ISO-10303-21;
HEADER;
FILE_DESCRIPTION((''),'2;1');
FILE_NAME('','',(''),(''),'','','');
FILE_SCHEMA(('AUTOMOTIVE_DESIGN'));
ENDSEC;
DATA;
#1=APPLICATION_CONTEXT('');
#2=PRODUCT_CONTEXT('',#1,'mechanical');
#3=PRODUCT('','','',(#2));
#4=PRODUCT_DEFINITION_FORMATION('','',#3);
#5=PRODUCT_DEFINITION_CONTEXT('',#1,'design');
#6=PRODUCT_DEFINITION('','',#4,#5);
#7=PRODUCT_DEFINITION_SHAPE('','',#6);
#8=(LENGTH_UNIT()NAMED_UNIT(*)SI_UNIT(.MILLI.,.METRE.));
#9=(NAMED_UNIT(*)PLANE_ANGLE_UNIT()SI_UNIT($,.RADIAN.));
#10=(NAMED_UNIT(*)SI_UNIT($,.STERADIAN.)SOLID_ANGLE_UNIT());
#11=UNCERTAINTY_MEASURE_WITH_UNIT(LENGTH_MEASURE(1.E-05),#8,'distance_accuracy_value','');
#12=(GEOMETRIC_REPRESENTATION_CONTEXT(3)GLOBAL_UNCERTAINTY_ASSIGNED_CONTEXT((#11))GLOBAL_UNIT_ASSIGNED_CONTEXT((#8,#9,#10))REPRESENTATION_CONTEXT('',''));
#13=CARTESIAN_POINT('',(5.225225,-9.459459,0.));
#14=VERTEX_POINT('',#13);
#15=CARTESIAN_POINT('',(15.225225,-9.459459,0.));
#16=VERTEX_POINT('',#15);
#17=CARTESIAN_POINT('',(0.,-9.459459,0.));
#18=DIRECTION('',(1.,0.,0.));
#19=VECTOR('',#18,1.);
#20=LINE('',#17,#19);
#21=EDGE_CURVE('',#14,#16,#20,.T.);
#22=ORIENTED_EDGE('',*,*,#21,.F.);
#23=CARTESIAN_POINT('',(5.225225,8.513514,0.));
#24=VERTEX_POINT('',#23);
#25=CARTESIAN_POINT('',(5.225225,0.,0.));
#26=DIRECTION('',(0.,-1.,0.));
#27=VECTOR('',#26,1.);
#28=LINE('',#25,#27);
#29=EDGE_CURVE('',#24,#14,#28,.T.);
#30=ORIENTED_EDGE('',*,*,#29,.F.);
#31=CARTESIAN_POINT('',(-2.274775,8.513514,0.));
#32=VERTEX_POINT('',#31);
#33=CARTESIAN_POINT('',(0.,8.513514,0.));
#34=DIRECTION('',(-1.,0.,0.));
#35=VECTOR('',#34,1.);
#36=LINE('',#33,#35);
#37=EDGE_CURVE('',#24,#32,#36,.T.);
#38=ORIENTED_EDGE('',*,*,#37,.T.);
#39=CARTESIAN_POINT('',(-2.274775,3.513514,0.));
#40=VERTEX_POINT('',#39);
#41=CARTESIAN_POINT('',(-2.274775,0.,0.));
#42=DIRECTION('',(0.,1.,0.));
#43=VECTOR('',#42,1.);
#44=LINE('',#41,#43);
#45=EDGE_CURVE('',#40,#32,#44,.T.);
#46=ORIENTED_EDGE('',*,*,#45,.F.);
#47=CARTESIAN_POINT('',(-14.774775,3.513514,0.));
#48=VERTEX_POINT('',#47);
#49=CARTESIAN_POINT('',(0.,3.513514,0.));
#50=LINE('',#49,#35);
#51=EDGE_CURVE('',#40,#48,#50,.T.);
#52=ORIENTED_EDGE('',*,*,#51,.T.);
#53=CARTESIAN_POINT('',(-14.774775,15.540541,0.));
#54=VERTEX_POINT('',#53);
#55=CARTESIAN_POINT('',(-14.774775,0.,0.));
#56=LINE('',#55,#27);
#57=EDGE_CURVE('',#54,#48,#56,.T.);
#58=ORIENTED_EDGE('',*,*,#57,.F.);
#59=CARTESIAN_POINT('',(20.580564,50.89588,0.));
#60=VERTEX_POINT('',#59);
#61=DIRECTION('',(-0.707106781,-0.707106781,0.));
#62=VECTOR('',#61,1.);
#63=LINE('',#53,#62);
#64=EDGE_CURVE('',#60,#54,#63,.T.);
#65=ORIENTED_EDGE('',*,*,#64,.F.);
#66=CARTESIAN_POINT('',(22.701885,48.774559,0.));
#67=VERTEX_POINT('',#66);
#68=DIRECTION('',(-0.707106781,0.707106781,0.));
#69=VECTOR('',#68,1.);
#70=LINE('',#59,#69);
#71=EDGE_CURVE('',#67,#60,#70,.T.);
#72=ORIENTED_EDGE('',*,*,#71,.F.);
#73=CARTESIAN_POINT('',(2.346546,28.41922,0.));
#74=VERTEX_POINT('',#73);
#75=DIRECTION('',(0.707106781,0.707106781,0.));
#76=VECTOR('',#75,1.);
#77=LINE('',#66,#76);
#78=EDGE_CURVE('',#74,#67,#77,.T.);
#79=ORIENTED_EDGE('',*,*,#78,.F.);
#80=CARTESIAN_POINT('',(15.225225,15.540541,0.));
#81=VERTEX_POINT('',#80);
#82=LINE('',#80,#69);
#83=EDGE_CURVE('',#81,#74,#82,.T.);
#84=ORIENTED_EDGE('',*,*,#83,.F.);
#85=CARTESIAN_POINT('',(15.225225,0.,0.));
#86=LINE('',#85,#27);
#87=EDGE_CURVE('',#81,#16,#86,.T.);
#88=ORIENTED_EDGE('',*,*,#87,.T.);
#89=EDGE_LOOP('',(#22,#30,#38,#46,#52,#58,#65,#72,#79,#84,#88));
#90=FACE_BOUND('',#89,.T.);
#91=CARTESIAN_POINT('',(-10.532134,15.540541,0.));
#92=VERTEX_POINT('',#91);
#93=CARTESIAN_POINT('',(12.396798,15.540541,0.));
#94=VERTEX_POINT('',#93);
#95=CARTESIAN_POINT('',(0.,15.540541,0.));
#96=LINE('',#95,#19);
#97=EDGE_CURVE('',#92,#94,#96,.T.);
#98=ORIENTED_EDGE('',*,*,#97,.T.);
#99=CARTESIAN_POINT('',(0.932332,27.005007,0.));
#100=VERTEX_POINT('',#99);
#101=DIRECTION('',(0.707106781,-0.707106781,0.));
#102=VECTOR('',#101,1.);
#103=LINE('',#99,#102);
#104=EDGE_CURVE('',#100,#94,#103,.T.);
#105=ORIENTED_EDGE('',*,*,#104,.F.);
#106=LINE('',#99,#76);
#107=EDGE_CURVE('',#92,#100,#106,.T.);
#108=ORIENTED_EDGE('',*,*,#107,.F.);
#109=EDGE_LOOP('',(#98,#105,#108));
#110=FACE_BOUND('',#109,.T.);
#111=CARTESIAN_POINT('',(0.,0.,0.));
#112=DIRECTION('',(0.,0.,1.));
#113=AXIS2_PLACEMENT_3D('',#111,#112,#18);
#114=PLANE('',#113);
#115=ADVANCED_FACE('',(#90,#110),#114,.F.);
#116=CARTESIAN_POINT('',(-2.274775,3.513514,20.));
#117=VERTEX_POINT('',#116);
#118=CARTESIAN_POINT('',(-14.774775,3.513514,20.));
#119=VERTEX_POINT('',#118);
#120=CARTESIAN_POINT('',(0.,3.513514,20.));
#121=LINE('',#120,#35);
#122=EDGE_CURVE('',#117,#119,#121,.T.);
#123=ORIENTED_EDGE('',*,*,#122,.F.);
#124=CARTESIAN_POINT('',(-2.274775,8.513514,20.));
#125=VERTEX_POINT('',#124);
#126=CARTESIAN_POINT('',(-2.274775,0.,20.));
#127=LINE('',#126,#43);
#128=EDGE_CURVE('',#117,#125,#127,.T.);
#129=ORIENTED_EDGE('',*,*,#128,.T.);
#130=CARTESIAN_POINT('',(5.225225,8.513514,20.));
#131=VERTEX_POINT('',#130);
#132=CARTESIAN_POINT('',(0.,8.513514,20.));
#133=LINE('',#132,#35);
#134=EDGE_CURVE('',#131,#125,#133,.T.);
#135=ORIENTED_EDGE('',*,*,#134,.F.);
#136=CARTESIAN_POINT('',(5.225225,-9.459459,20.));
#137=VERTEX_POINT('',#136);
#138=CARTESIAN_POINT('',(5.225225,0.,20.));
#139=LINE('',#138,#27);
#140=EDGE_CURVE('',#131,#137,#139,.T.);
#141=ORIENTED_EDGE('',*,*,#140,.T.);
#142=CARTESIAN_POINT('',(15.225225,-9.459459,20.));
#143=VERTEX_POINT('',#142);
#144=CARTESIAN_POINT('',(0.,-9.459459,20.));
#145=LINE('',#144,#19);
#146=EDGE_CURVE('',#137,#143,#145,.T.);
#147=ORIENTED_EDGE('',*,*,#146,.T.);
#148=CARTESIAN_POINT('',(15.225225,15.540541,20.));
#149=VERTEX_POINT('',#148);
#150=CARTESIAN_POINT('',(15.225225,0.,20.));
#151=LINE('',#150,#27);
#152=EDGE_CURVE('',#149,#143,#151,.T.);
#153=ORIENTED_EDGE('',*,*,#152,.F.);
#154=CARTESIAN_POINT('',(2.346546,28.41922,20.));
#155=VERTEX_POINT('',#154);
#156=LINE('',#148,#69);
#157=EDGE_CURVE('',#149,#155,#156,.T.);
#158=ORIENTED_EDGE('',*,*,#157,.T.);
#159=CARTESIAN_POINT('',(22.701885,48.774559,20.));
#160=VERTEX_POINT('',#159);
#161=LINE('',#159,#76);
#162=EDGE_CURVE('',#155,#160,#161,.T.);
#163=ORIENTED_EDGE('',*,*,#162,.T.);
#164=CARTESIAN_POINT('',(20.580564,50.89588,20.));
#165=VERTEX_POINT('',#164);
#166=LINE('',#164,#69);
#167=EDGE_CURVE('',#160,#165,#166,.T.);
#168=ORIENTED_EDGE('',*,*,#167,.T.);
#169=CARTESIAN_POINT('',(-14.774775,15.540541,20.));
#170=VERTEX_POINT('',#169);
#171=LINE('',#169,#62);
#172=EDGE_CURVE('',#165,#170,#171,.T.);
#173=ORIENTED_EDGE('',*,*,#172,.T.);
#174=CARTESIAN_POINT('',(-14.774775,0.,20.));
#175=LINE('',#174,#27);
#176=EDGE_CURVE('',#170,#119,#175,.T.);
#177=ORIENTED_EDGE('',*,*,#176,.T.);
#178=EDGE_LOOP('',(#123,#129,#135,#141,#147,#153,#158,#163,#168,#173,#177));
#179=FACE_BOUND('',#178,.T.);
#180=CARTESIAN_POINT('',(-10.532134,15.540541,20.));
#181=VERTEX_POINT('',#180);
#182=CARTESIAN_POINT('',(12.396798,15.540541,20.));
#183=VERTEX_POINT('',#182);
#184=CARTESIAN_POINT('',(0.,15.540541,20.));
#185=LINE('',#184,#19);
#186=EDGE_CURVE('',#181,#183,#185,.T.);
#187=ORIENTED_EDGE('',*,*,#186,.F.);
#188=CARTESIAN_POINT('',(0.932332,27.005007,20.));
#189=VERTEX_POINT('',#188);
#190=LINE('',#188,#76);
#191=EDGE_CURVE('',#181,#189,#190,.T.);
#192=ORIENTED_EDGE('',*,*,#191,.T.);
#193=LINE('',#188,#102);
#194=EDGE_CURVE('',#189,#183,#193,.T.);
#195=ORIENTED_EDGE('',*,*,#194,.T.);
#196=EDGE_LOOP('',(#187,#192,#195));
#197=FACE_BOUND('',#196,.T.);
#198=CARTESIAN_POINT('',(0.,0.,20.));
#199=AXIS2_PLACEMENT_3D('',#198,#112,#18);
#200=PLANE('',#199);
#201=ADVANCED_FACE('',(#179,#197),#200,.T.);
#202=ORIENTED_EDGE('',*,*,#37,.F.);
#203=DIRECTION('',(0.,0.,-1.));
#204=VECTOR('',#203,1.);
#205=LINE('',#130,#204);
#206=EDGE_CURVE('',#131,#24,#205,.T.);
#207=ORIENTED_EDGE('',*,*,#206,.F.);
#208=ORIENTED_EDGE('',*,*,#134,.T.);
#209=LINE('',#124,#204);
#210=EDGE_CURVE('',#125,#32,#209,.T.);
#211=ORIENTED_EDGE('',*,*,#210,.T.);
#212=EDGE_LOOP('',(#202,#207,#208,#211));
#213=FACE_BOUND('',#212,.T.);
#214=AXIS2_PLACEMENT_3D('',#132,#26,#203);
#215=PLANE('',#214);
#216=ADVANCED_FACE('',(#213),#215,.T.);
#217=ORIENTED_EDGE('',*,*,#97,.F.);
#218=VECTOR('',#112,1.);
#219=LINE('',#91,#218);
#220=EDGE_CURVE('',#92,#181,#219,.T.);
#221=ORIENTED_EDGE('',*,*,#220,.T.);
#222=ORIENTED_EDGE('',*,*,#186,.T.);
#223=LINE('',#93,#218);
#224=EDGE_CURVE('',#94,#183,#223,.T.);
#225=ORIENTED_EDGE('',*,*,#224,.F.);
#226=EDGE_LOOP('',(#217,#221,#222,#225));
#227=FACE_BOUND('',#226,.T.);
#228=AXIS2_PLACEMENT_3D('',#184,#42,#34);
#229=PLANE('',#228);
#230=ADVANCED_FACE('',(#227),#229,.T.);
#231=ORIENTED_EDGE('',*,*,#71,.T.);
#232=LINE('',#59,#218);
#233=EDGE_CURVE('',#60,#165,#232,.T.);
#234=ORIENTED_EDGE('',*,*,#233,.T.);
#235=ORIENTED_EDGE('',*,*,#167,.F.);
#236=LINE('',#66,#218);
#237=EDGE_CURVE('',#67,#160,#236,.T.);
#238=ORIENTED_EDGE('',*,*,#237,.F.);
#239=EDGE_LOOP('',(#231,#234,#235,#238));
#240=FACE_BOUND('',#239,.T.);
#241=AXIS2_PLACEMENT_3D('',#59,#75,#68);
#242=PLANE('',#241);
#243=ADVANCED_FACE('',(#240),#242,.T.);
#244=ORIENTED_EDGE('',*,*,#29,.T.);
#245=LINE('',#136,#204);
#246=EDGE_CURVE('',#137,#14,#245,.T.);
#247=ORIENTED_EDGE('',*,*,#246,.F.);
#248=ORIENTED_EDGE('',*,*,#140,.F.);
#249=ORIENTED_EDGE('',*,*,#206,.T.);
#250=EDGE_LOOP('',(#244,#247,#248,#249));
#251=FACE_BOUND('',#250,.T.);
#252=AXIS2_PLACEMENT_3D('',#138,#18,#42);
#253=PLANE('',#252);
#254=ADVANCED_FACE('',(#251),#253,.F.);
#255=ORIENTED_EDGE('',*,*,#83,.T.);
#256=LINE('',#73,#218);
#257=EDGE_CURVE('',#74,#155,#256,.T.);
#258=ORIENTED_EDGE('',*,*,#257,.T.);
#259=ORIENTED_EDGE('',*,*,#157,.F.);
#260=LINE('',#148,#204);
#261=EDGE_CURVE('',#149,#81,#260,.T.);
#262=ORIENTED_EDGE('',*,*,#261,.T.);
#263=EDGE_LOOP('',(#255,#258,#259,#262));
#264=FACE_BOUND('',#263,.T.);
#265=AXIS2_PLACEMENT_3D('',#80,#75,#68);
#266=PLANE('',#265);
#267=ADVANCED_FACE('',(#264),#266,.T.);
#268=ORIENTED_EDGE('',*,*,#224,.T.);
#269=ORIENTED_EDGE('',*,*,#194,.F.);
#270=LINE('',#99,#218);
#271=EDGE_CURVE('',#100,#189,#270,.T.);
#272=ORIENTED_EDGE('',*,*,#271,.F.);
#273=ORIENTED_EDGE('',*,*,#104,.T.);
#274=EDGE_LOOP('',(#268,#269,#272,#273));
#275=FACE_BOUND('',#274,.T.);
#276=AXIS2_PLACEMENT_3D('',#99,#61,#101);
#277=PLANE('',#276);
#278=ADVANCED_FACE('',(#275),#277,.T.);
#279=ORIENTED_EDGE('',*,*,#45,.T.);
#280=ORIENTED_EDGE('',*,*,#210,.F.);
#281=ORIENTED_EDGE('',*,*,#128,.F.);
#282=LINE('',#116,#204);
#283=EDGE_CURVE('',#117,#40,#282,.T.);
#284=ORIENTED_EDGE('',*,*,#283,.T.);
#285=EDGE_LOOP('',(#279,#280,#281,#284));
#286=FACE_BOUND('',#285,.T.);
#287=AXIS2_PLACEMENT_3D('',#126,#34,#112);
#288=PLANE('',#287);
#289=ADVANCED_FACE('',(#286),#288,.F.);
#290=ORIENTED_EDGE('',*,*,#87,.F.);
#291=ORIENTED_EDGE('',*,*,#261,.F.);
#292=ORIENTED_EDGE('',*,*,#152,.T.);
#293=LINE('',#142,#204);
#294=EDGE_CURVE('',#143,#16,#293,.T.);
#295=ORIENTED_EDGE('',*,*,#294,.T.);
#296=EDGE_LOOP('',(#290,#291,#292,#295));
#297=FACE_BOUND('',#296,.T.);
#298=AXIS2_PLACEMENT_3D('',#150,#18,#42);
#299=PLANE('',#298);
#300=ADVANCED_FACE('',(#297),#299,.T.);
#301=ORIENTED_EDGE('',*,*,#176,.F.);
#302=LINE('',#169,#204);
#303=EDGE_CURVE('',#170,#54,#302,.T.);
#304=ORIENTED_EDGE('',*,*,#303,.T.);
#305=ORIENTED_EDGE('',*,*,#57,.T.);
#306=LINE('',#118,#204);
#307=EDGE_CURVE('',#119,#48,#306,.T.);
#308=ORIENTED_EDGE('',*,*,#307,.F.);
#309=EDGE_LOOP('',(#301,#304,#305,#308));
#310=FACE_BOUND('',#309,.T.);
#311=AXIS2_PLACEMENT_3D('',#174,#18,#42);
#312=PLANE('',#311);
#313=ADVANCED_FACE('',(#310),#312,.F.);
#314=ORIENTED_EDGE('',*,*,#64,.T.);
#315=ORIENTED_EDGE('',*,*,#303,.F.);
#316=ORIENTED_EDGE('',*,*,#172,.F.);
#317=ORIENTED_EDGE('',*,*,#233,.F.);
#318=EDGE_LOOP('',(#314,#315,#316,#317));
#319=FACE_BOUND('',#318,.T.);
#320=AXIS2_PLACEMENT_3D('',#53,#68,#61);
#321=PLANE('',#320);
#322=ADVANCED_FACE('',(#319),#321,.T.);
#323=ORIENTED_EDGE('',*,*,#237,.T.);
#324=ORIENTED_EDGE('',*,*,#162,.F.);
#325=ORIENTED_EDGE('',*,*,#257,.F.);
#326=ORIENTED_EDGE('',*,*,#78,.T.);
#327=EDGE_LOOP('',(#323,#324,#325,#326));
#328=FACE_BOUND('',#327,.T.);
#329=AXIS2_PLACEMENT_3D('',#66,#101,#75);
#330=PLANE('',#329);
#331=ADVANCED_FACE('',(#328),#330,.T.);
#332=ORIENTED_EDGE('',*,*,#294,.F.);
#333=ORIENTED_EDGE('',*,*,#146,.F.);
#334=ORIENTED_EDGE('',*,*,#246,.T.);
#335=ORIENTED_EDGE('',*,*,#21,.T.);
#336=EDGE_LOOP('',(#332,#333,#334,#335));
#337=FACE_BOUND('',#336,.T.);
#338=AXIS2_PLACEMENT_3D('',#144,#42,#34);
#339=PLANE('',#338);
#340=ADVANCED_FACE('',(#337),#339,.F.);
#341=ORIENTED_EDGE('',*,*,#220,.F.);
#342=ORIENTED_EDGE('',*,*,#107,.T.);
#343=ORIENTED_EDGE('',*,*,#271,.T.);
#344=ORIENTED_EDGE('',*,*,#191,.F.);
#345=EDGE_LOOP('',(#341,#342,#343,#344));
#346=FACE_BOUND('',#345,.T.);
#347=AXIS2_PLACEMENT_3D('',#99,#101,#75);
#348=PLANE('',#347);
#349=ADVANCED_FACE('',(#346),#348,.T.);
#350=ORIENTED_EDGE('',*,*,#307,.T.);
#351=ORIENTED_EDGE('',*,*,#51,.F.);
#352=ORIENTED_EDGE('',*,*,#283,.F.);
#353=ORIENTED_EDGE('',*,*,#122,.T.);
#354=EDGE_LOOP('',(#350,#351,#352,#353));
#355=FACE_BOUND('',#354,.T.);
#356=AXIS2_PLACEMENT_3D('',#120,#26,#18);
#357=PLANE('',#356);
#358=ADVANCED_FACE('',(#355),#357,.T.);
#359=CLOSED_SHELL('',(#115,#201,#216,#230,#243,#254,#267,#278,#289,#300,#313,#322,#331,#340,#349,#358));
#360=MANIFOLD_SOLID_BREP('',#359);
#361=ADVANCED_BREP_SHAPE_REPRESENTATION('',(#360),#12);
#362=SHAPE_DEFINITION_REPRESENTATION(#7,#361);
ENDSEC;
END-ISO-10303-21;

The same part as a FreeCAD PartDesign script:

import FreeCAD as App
import Part
import Sketcher
from FreeCAD import Vector
Q = App.Units.Quantity

doc = App.newDocument("Part")
body = doc.addObject("PartDesign::Body", "Body")

sketch1 = body.newObject("Sketcher::SketchObject", "Sketch")
sketch1.AttachmentSupport = (doc.getObject("XY_Plane"), [""])
sketch1.MapMode = "FlatFace"
sketch1.addGeometry([
    Part.LineSegment(Vector(-15, 4, 0), Vector(-2, 4, 0)),
    Part.LineSegment(Vector(-2, 4, 0), Vector(-2, 9, 0)),
    Part.LineSegment(Vector(-2, 9, 0), Vector(5, 9, 0)),
    Part.LineSegment(Vector(5, 9, 0), Vector(5, -9, 0)),
    Part.LineSegment(Vector(5, -9, 0), Vector(15, -9, 0)),
    Part.LineSegment(Vector(15, -9, 0), Vector(15, 16, 0)),
    Part.LineSegment(Vector(15, 16, 0), Vector(-15, 16, 0)),
    Part.LineSegment(Vector(-15, 16, 0), Vector(-15, 4, 0)),
], False)
sketch1.addConstraint([
    Sketcher.Constraint("Coincident", 0, 2, 1, 1),
    Sketcher.Constraint("Coincident", 1, 2, 2, 1),
    Sketcher.Constraint("Coincident", 2, 2, 3, 1),
    Sketcher.Constraint("Coincident", 3, 2, 4, 1),
    Sketcher.Constraint("Coincident", 4, 2, 5, 1),
    Sketcher.Constraint("Coincident", 5, 2, 6, 1),
    Sketcher.Constraint("Coincident", 6, 2, 7, 1),
    Sketcher.Constraint("Coincident", 7, 2, 0, 1),
    Sketcher.Constraint("Horizontal", 0),
    Sketcher.Constraint("Vertical", 1),
    Sketcher.Constraint("Horizontal", 2),
    Sketcher.Constraint("Vertical", 3),
    Sketcher.Constraint("Horizontal", 4),
    Sketcher.Constraint("Vertical", 5),
    Sketcher.Constraint("Horizontal", 6),
    Sketcher.Constraint("Vertical", 7),
    Sketcher.Constraint("DistanceX", 4, 1, 4, 2, Q("10 mm")),
    Sketcher.Constraint("DistanceX", 6, 2, 6, 1, Q("30 mm")),
    Sketcher.Constraint("DistanceY", 1, 1, 1, 2, Q("5 mm")),
    Sketcher.Constraint("DistanceY", 5, 1, 5, 2, Q("25 mm")),
    Sketcher.Constraint("DistanceX", 0, 1, 0, 2, Q("12.5 mm")),
    Sketcher.Constraint("DistanceY", 3, 2, 3, 1, Q("17.972973 mm")),
    Sketcher.Constraint("DistanceY", 3, 2, -1, 1, Q("9.459459 mm")),
    Sketcher.Constraint("DistanceX", 0, 2, -1, 1, Q("2.274775 mm")),
])
pad1 = body.newObject("PartDesign::Pad", "Pad")
pad1.Profile = sketch1
pad1.Length = 20

sketch2 = body.newObject("Sketcher::SketchObject", "Sketch001")
sketch2.AttachmentSupport = (doc.getObject("XY_Plane"), [""])
sketch2.MapMode = "FlatFace"
sketch2.AttachmentOffset = App.Placement(Vector(0, 0, 20), App.Rotation())
sketch2.addGeometry([
    Part.LineSegment(Vector(20.6, 50.9, 0), Vector(-14.8, 15.5, 0)),
    Part.LineSegment(Vector(-14.8, 15.5, 0), Vector(-10.5, 15.5, 0)),
    Part.LineSegment(Vector(-10.5, 15.5, 0), Vector(0.9, 27, 0)),
    Part.LineSegment(Vector(0.9, 27, 0), Vector(12.4, 15.5, 0)),
    Part.LineSegment(Vector(12.4, 15.5, 0), Vector(15.2, 15.5, 0)),
    Part.LineSegment(Vector(15.2, 15.5, 0), Vector(2.3, 28.4, 0)),
    Part.LineSegment(Vector(2.3, 28.4, 0), Vector(22.7, 48.8, 0)),
    Part.LineSegment(Vector(22.7, 48.8, 0), Vector(20.6, 50.9, 0)),
], False)
sketch2.addConstraint([
    Sketcher.Constraint("Coincident", 0, 2, 1, 1),
    Sketcher.Constraint("Coincident", 1, 2, 2, 1),
    Sketcher.Constraint("Coincident", 2, 2, 3, 1),
    Sketcher.Constraint("Coincident", 3, 2, 4, 1),
    Sketcher.Constraint("Coincident", 4, 2, 5, 1),
    Sketcher.Constraint("Coincident", 5, 2, 6, 1),
    Sketcher.Constraint("Coincident", 6, 2, 7, 1),
    Sketcher.Constraint("Coincident", 7, 2, 0, 1),
    Sketcher.Constraint("Horizontal", 1),
    Sketcher.Constraint("Horizontal", 4),
    Sketcher.Constraint("Parallel", 0, 2),
    Sketcher.Constraint("Perpendicular", 2, 3),
    Sketcher.Constraint("Parallel", 3, 5),
    Sketcher.Constraint("Perpendicular", 5, 6),
    Sketcher.Constraint("Perpendicular", 6, 7),
    Sketcher.Constraint("Horizontal", 1, 2, 3, 2),
    Sketcher.Constraint("Equal", 2, 3),
    Sketcher.Constraint("Distance", 0, Q("50 mm")),
    Sketcher.Constraint("Distance", 7, Q("3 mm")),
    Sketcher.Constraint("DistanceX", 0, 2, 4, 2, Q("30 mm")),
    Sketcher.Constraint("DistanceX", 1, 1, 1, 2, Q("4.242641 mm")),
    Sketcher.Constraint("DistanceX", -1, 1, 3, 2, Q("12.396798 mm")),
    Sketcher.Constraint("DistanceX", 4, 1, 4, 2, Q("2.828427 mm")),
    Sketcher.Constraint("DistanceY", -1, 1, 0, 2, Q("15.540541 mm")),
])
pad2 = body.newObject("PartDesign::Pad", "Pad001")
pad2.Profile = sketch2
pad2.Length = 20
pad2.Reversed = True

doc.recompute()
